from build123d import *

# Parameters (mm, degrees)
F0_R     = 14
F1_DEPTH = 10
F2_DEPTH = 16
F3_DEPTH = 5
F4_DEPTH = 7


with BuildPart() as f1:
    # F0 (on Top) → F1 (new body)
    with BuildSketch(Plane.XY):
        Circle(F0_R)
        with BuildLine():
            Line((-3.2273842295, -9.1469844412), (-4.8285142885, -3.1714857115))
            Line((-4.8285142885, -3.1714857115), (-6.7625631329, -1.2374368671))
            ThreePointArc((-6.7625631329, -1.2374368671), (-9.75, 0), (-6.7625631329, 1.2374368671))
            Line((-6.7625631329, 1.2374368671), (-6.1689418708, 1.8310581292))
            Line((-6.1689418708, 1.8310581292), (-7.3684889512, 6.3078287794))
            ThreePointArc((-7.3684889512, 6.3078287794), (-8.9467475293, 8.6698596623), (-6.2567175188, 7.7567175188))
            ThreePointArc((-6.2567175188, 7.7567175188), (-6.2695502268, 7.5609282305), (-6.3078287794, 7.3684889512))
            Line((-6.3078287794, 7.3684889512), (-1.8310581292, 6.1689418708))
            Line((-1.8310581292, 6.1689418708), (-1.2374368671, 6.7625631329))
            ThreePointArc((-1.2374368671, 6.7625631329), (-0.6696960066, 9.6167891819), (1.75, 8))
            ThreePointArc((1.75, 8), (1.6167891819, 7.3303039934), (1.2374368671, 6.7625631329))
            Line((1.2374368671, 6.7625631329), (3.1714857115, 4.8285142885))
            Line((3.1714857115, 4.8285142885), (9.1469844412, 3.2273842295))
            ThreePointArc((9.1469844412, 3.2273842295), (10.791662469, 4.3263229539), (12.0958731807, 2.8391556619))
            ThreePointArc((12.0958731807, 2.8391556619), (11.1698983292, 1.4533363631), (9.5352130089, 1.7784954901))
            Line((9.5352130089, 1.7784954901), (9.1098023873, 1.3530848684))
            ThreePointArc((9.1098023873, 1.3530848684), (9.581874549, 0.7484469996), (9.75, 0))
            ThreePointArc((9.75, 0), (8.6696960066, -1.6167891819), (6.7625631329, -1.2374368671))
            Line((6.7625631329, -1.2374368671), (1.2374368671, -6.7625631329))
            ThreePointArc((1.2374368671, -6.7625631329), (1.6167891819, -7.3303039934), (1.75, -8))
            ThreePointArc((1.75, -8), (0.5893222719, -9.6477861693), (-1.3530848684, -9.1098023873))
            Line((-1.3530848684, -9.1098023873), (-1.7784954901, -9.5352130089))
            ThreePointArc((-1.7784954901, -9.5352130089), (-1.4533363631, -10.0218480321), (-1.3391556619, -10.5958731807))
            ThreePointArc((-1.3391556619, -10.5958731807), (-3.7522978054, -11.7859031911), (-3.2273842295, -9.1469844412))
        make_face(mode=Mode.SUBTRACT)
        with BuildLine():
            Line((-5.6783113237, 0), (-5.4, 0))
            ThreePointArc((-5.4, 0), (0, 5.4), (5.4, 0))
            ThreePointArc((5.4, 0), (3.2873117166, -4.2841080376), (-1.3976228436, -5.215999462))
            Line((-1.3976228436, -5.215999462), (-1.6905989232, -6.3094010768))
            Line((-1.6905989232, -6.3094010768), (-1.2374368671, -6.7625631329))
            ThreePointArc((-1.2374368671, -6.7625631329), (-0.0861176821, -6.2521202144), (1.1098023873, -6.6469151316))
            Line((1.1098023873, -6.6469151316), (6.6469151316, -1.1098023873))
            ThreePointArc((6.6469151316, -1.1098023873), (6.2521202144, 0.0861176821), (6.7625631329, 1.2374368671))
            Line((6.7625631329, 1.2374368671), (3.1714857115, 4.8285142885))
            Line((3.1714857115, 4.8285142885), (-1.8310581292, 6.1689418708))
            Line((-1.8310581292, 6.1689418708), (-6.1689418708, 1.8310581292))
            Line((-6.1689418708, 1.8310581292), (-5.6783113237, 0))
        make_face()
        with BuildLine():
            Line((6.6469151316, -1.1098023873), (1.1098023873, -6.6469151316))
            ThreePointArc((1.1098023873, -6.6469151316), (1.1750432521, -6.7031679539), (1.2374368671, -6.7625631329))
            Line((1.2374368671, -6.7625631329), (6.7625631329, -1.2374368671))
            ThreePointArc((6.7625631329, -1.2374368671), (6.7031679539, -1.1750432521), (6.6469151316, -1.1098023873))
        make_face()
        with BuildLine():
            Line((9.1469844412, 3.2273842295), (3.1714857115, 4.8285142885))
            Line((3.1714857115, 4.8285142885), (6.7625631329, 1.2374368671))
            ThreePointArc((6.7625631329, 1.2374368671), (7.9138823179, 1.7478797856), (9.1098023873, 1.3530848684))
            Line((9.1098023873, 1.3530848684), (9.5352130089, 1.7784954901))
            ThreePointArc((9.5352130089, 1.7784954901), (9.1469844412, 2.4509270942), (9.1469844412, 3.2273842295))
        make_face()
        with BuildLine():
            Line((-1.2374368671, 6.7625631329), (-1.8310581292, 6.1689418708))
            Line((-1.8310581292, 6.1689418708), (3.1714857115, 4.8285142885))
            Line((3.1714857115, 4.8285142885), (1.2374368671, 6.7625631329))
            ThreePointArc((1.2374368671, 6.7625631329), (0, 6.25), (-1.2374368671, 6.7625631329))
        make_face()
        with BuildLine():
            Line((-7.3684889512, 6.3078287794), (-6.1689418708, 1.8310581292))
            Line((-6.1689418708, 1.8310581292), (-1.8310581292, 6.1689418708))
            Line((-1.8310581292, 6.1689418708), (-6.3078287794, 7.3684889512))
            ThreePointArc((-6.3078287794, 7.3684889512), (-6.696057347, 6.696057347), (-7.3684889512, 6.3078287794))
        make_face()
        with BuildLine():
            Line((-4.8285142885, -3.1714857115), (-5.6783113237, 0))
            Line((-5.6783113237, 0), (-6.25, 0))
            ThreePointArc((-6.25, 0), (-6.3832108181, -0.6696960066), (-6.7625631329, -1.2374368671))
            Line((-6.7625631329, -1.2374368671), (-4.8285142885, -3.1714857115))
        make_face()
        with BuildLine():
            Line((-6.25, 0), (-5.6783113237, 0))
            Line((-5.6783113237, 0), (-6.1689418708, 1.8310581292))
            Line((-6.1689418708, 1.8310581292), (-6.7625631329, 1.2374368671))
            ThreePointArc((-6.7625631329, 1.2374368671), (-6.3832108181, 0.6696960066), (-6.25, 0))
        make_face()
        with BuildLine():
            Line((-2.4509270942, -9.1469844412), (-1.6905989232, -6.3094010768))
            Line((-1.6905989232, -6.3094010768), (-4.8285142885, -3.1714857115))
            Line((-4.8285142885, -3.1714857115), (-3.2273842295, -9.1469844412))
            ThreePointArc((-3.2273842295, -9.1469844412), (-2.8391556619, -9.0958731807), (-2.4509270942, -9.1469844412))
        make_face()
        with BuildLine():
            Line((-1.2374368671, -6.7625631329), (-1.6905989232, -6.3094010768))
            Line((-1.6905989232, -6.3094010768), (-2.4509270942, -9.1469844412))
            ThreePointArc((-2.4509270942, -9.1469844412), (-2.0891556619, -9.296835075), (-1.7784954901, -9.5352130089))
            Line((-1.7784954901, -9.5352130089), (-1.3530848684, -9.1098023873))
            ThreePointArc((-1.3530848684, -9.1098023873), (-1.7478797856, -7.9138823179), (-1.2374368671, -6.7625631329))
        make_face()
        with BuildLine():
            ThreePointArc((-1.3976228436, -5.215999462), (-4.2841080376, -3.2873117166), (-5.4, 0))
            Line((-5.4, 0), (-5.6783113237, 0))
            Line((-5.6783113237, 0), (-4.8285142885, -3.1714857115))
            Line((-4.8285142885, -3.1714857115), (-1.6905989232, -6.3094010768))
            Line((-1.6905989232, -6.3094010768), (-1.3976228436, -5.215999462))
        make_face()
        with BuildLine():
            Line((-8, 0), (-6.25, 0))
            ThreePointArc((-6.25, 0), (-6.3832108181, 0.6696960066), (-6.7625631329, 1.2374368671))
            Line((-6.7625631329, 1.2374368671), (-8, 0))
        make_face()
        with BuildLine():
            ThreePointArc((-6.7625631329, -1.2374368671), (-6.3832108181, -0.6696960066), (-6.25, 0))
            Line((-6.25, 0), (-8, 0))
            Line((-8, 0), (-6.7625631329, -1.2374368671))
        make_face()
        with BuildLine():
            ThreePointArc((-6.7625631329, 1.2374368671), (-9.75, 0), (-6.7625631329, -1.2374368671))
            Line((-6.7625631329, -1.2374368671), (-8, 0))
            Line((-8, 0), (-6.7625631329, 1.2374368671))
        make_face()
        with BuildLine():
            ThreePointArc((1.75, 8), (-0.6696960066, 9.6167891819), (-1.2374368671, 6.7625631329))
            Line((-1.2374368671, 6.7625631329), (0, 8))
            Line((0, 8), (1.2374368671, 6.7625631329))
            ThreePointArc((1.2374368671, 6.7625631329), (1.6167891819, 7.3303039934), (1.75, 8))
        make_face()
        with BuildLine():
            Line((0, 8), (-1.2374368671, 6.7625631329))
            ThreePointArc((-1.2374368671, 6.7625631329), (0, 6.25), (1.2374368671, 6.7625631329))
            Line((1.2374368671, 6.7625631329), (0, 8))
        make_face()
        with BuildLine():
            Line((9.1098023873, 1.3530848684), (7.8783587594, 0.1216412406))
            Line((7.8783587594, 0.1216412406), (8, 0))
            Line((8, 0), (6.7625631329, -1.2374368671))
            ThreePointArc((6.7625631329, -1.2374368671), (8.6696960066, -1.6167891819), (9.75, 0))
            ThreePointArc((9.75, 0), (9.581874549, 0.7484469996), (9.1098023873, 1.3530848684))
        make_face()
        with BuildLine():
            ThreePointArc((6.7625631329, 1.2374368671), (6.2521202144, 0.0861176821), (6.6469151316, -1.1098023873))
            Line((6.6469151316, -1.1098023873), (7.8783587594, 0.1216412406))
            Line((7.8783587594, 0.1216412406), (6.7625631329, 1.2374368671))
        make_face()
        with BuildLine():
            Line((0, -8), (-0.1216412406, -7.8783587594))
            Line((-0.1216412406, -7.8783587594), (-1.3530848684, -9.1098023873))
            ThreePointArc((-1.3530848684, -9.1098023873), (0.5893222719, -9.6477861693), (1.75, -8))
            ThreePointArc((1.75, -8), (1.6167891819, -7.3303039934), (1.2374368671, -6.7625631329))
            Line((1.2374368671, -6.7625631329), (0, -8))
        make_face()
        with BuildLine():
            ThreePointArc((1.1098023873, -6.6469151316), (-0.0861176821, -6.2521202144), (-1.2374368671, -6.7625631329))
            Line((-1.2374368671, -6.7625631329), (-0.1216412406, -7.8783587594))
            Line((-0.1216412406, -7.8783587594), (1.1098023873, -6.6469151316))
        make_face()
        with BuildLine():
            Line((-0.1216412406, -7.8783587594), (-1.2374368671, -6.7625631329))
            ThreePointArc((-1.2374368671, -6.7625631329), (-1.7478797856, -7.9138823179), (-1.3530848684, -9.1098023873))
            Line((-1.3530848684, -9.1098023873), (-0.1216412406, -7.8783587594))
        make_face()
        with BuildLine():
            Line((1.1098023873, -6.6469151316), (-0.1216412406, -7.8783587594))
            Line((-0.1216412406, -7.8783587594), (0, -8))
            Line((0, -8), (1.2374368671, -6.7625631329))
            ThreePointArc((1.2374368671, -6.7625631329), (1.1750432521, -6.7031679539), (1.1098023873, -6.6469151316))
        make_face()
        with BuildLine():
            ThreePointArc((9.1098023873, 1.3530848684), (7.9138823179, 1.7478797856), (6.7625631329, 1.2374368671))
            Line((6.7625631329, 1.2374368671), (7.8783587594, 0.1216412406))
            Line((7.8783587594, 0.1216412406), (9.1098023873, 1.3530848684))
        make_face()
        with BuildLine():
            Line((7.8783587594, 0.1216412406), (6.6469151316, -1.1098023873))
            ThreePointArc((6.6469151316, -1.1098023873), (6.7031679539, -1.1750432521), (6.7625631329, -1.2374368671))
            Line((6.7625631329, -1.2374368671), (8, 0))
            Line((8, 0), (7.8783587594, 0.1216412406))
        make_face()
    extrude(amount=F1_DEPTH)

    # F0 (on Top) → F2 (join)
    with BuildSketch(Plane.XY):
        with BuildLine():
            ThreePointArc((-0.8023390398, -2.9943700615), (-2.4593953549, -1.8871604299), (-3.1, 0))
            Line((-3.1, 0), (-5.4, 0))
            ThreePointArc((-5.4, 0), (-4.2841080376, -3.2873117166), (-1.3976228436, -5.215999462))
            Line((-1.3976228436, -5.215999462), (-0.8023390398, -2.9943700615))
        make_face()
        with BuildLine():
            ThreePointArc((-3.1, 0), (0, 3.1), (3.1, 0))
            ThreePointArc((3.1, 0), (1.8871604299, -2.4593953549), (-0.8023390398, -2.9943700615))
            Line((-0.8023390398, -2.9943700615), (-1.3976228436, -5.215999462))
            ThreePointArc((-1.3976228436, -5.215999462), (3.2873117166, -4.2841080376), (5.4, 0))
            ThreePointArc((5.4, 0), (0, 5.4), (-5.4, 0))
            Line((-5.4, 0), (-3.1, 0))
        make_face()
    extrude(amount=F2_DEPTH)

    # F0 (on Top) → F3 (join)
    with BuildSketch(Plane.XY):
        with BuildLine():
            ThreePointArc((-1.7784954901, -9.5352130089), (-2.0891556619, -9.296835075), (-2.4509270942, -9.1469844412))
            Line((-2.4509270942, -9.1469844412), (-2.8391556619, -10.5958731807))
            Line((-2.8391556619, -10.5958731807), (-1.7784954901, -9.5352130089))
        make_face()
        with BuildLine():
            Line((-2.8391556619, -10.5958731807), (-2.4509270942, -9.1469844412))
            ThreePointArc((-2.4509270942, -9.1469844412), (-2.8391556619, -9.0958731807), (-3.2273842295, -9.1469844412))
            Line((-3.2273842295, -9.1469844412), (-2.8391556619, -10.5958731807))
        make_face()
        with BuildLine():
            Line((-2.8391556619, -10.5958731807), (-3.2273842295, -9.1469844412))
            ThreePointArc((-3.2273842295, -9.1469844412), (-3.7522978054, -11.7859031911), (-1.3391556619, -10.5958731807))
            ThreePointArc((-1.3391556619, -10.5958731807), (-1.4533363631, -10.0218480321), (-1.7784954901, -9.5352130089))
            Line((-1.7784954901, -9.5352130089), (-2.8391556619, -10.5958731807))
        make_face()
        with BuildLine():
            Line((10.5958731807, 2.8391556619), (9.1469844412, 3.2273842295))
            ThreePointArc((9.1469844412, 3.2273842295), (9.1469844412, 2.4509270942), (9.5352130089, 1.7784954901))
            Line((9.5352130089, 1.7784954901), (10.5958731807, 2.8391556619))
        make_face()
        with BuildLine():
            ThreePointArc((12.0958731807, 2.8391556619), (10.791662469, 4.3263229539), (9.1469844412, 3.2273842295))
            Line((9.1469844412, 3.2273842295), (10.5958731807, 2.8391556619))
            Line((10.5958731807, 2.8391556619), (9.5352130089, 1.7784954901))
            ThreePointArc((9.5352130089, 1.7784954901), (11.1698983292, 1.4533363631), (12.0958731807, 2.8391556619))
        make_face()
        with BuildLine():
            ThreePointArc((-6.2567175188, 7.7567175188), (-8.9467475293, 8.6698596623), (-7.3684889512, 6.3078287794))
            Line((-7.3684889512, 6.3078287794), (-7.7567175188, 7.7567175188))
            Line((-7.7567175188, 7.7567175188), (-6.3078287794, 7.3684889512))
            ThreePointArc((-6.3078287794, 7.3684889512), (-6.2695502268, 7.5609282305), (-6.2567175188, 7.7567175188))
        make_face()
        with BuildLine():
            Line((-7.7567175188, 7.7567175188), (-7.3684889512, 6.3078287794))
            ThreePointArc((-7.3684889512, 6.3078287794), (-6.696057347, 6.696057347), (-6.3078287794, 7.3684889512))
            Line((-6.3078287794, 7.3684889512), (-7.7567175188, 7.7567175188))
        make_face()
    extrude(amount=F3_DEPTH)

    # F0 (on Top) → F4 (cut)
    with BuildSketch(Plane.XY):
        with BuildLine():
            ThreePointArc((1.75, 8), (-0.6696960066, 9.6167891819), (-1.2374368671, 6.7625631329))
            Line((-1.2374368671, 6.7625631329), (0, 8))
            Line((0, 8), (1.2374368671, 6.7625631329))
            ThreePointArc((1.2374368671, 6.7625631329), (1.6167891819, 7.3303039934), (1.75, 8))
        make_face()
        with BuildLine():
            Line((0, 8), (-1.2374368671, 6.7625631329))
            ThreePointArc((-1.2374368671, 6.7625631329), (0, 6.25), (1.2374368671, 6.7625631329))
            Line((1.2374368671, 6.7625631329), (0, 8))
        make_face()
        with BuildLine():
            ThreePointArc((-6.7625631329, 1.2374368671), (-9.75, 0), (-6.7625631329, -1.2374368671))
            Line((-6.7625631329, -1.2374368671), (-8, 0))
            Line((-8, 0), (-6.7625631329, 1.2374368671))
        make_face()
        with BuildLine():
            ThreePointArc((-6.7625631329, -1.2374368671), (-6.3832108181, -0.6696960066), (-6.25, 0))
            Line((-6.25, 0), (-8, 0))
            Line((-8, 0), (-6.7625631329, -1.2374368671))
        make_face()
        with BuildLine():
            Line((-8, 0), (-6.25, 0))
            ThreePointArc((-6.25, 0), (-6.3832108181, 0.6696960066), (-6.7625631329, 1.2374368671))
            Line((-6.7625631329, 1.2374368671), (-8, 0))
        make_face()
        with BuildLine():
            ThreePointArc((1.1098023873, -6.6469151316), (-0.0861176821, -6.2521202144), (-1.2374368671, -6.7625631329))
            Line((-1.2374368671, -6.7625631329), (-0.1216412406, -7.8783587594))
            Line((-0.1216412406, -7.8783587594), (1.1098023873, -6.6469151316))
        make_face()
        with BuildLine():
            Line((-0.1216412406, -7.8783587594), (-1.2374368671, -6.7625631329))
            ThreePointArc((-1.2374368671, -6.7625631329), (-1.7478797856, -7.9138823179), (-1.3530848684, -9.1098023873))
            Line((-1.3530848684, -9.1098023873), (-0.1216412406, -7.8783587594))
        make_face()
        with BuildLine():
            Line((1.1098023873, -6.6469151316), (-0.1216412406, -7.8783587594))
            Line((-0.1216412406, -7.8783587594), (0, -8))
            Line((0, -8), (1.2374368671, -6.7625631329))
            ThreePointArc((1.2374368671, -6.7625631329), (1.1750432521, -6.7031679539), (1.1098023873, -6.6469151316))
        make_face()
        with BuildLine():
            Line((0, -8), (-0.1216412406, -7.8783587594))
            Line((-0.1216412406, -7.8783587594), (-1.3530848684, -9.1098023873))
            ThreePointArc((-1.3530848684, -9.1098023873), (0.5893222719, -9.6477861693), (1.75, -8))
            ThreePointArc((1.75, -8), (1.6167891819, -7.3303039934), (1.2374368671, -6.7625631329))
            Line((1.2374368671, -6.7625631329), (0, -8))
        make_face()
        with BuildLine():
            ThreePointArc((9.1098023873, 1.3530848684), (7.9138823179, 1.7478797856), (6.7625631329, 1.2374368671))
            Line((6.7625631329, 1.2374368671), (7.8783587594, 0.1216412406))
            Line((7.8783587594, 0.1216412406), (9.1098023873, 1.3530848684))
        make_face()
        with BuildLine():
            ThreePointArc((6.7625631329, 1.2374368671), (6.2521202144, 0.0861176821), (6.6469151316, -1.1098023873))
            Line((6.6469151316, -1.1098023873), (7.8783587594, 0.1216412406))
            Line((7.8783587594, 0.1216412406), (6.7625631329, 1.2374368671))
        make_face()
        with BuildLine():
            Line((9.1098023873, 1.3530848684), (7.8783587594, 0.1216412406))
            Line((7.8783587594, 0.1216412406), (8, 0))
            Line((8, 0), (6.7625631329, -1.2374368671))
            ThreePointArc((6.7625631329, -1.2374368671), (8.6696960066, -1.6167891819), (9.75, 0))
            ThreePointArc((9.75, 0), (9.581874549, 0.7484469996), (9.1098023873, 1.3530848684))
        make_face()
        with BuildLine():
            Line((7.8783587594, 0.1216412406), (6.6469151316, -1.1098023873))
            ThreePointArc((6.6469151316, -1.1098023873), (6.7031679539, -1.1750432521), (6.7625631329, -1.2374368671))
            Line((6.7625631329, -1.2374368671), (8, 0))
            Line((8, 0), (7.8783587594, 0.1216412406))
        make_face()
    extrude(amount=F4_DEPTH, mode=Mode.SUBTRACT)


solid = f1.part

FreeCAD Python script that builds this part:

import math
import FreeCAD as App
import Part
import Sketcher
from FreeCAD import Vector
Q = App.Units.Quantity

doc = App.newDocument("Part")
body = doc.addObject("PartDesign::Body", "Body")

sketch1 = body.newObject("Sketcher::SketchObject", "Sketch")
sketch1.AttachmentSupport = (doc.getObject("XY_Plane"), [""])
sketch1.MapMode = "FlatFace"
sketch1.addGeometry([
    Part.Circle(Vector(0, 0, 0), Vector(0, 0, 1), 14),
    Part.ArcOfCircle(Part.Circle(Vector(-2.84, -10.6, 0), Vector(0, 0, 1), 1.5), math.radians(75), math.radians(105)),
    Part.ArcOfCircle(Part.Circle(Vector(-2.84, -10.6, 0), Vector(0, 0, 1), 1.5), math.radians(45), math.radians(75)),
    Part.ArcOfCircle(Part.Circle(Vector(-2.84, -10.6, 0), Vector(0, 0, 1), 1.5), math.radians(0), math.radians(45)),
    Part.ArcOfCircle(Part.Circle(Vector(-2.84, -10.6, 0), Vector(0, 0, 1), 1.5), math.radians(105), math.radians(360)),
    Part.ArcOfCircle(Part.Circle(Vector(0, 0, 0), Vector(0, 0, 1), 5.4), math.radians(0), math.radians(180)),
    Part.ArcOfCircle(Part.Circle(Vector(0, 0, 0), Vector(0, 0, 1), 5.4), math.radians(-105), math.radians(0)),
    Part.ArcOfCircle(Part.Circle(Vector(0, 0, 0), Vector(0, 0, 1), 5.4), math.radians(180), math.radians(255)),
    Part.ArcOfCircle(Part.Circle(Vector(-7.76, 7.76, 0), Vector(0, 0, 1), 1.5), math.radians(-15), math.radians(0)),
    Part.ArcOfCircle(Part.Circle(Vector(-7.76, 7.76, 0), Vector(0, 0, 1), 1.5), math.radians(-75), math.radians(-15)),
    Part.ArcOfCircle(Part.Circle(Vector(-7.76, 7.76, 0), Vector(0, 0, 1), 1.5), math.radians(0), math.radians(285)),
    Part.ArcOfCircle(Part.Circle(Vector(10.6, 2.84, 0), Vector(0, 0, 1), 1.5), math.radians(-135), math.radians(0)),
    Part.ArcOfCircle(Part.Circle(Vector(10.6, 2.84, 0), Vector(0, 0, 1), 1.5), math.radians(165), math.radians(225)),
    Part.ArcOfCircle(Part.Circle(Vector(10.6, 2.84, 0), Vector(0, 0, 1), 1.5), math.radians(0), math.radians(165)),
], False)
sketch1.addConstraint([
    Sketcher.Constraint("Tangent", 1, 1, 2, 2),
    Sketcher.Constraint("Tangent", 2, 1, 3, 2),
    Sketcher.Constraint("Tangent", 3, 1, 4, 2),
    Sketcher.Constraint("Tangent", 4, 1, 1, 2),
    Sketcher.Constraint("Tangent", 5, 1, 6, 2),
    Sketcher.Constraint("Tangent", 6, 1, 7, 2),
    Sketcher.Constraint("Tangent", 7, 1, 5, 2),
    Sketcher.Constraint("Tangent", 8, 1, 9, 2),
    Sketcher.Constraint("Tangent", 9, 1, 10, 2),
    Sketcher.Constraint("Tangent", 10, 1, 8, 2),
    Sketcher.Constraint("Tangent", 11, 1, 12, 2),
    Sketcher.Constraint("Tangent", 12, 1, 13, 2),
    Sketcher.Constraint("Tangent", 13, 1, 11, 2),
    Sketcher.Constraint("Coincident", 0, 3, -1, 1),
    Sketcher.Constraint("Coincident", 5, 3, -1, 1),
    Sketcher.Constraint("Equal", 1, 2),
    Sketcher.Constraint("Equal", 4, 8),
    Sketcher.Constraint("Equal", 10, 11),
    Sketcher.Constraint("PointOnObject", 5, 1, -1),
    Sketcher.Constraint("PointOnObject", 7, 1, -1),
    Sketcher.Constraint("Horizontal", 4, 3, 3, 1),
    Sketcher.Constraint("Horizontal", 1, 1, 4, 1),
    Sketcher.Constraint("Horizontal", 9, 3, 10, 1),
    Sketcher.Constraint("Horizontal", 12, 3, 13, 1),
    Sketcher.Constraint("Diameter", 0, Q("28 mm")),
    Sketcher.Constraint("Radius", 1, Q("1.5 mm")),
    Sketcher.Constraint("Radius", 5, Q("5.4 mm")),
    Sketcher.Constraint("DistanceY", 6, 1, -1, 1, Q("5.215999 mm")),
    Sketcher.Constraint("DistanceX", 8, 1, -1, 1, Q("6.307829 mm")),
    Sketcher.Constraint("DistanceY", -1, 1, 8, 1, Q("7.368489 mm")),
    Sketcher.Constraint("DistanceX", 9, 1, -1, 1, Q("7.368489 mm")),
    Sketcher.Constraint("DistanceY", -1, 1, 9, 1, Q("6.307829 mm")),
    Sketcher.Constraint("DistanceX", 8, 3, 3, 3, Q("4.917562 mm")),
    Sketcher.Constraint("DistanceY", 3, 3, 8, 3, Q("18.352591 mm")),
    Sketcher.Constraint("DistanceX", 3, 3, 11, 3, Q("13.435029 mm")),
    Sketcher.Constraint("DistanceY", 3, 3, 11, 3, Q("13.435029 mm")),
    Sketcher.Constraint("DistanceX", 3, 3, 1, 1, Q("0.388229 mm")),
    Sketcher.Constraint("DistanceX", 1, 1, 2, 1, Q("0.672432 mm")),
    Sketcher.Constraint("DistanceX", 11, 1, 12, 3, Q("1.06066 mm")),
    Sketcher.Constraint("DistanceX", 12, 1, 12, 3, Q("1.448889 mm")),
])
pad1 = body.newObject("PartDesign::Pad", "Pad")
pad1.Profile = sketch1
pad1.Length = 10

sketch2 = body.newObject("Sketcher::SketchObject", "Sketch001")
sketch2.AttachmentSupport = (doc.getObject("XY_Plane"), [""])
sketch2.MapMode = "FlatFace"
sketch2.addGeometry([
    Part.ArcOfCircle(Part.Circle(Vector(0, 0, 0), Vector(0, 0, 1), 5.4), math.radians(180), math.radians(255)),
    Part.ArcOfCircle(Part.Circle(Vector(0, 0, 0), Vector(0, 0, 1), 5.4), math.radians(-105), math.radians(0)),
    Part.ArcOfCircle(Part.Circle(Vector(0, 0, 0), Vector(0, 0, 1), 5.4), math.radians(0), math.radians(180)),
    Part.ArcOfCircle(Part.Circle(Vector(0, 0, 0), Vector(0, 0, 1), 3.1), math.radians(180), math.radians(255)),
    Part.ArcOfCircle(Part.Circle(Vector(0, 0, 0), Vector(0, 0, 1), 3.1), math.radians(0), math.radians(180)),
    Part.ArcOfCircle(Part.Circle(Vector(0, 0, 0), Vector(0, 0, 1), 3.1), math.radians(-105), math.radians(0)),
], False)
sketch2.addConstraint([
    Sketcher.Constraint("Tangent", 0, 2, 1, 1),
    Sketcher.Constraint("Tangent", 1, 2, 2, 1),
    Sketcher.Constraint("Tangent", 2, 2, 0, 1),
    Sketcher.Constraint("Tangent", 3, 1, 4, 2),
    Sketcher.Constraint("Tangent", 4, 1, 5, 2),
    Sketcher.Constraint("Tangent", 5, 1, 3, 2),
    Sketcher.Constraint("Coincident", 0, 3, -1, 1),
    Sketcher.Constraint("Coincident", 3, 3, -1, 1),
    Sketcher.Constraint("PointOnObject", 1, 2, -1),
    Sketcher.Constraint("PointOnObject", 2, 2, -1),
    Sketcher.Constraint("PointOnObject", 3, 1, -1),
    Sketcher.Constraint("PointOnObject", 4, 1, -1),
    Sketcher.Constraint("Radius", 0, Q("5.4 mm")),
    Sketcher.Constraint("Radius", 3, Q("3.1 mm")),
    Sketcher.Constraint("DistanceY", 0, 2, -1, 1, Q("5.215999 mm")),
    Sketcher.Constraint("DistanceX", 5, 1, -1, 1, Q("0.802339 mm")),
])
pad2 = body.newObject("PartDesign::Pad", "Pad001")
pad2.Profile = sketch2
pad2.Length = 16

sketch3 = body.newObject("Sketcher::SketchObject", "Sketch002")
sketch3.AttachmentSupport = (doc.getObject("XY_Plane"), [""])
sketch3.MapMode = "FlatFace"
sketch3.addGeometry([
    Part.ArcOfCircle(Part.Circle(Vector(-2.84, -10.6, 0), Vector(0, 0, 1), 1.5), math.radians(45), math.radians(75)),
    Part.ArcOfCircle(Part.Circle(Vector(-2.84, -10.6, 0), Vector(0, 0, 1), 1.5), math.radians(75), math.radians(105)),
    Part.ArcOfCircle(Part.Circle(Vector(-2.84, -10.6, 0), Vector(0, 0, 1), 1.5), math.radians(105), math.radians(360)),
    Part.ArcOfCircle(Part.Circle(Vector(-2.84, -10.6, 0), Vector(0, 0, 1), 1.5), math.radians(0), math.radians(45)),
    Part.ArcOfCircle(Part.Circle(Vector(10.6, 2.84, 0), Vector(0, 0, 1), 1.5), math.radians(165), math.radians(225)),
    Part.ArcOfCircle(Part.Circle(Vector(10.6, 2.84, 0), Vector(0, 0, 1), 1.5), math.radians(-135), math.radians(0)),
    Part.ArcOfCircle(Part.Circle(Vector(10.6, 2.84, 0), Vector(0, 0, 1), 1.5), math.radians(0), math.radians(165)),
    Part.ArcOfCircle(Part.Circle(Vector(-7.76, 7.76, 0), Vector(0, 0, 1), 1.5), math.radians(0), math.radians(285)),
    Part.ArcOfCircle(Part.Circle(Vector(-7.76, 7.76, 0), Vector(0, 0, 1), 1.5), math.radians(-75), math.radians(-15)),
    Part.ArcOfCircle(Part.Circle(Vector(-7.76, 7.76, 0), Vector(0, 0, 1), 1.5), math.radians(-15), math.radians(0)),
], False)
sketch3.addConstraint([
    Sketcher.Constraint("Tangent", 0, 2, 1, 1),
    Sketcher.Constraint("Tangent", 1, 2, 2, 1),
    Sketcher.Constraint("Tangent", 2, 2, 3, 1),
    Sketcher.Constraint("Tangent", 3, 2, 0, 1),
    Sketcher.Constraint("Tangent", 4, 2, 5, 1),
    Sketcher.Constraint("Tangent", 5, 2, 6, 1),
    Sketcher.Constraint("Tangent", 6, 2, 4, 1),
    Sketcher.Constraint("Tangent", 7, 2, 8, 1),
    Sketcher.Constraint("Tangent", 8, 2, 9, 1),
    Sketcher.Constraint("Tangent", 9, 2, 7, 1),
    Sketcher.Constraint("Equal", 0, 1),
    Sketcher.Constraint("Equal", 3, 4),
    Sketcher.Constraint("Equal", 6, 7),
    Sketcher.Constraint("Horizontal", 0, 2, 1, 2),
    Sketcher.Constraint("Horizontal", 3, 3, 2, 2),
    Sketcher.Constraint("Horizontal", 6, 3, 5, 2),
    Sketcher.Constraint("Horizontal", 8, 3, 9, 2),
    Sketcher.Constraint("Radius", 0, Q("1.5 mm")),
    Sketcher.Constraint("DistanceY", 0, 2, 8, 3, Q("16.903702 mm")),
    Sketcher.Constraint("DistanceX", 7, 2, -1, 1, Q("7.368489 mm")),
    Sketcher.Constraint("DistanceY", -1, 1, 7, 2, Q("6.307829 mm")),
    Sketcher.Constraint("DistanceX", 8, 2, -1, 1, Q("6.307829 mm")),
    Sketcher.Constraint("DistanceY", -1, 1, 8, 2, Q("7.368489 mm")),
    Sketcher.Constraint("DistanceX", 3, 3, 4, 3, Q("13.435029 mm")),
    Sketcher.Constraint("DistanceY", 3, 3, 4, 3, Q("13.435029 mm")),
    Sketcher.Constraint("DistanceX", 7, 3, 4, 3, Q("18.352591 mm")),
    Sketcher.Constraint("DistanceY", 4, 3, 7, 3, Q("4.917562 mm")),
    Sketcher.Constraint("DistanceX", 0, 2, 3, 2, Q("0.672432 mm")),
    Sketcher.Constraint("DistanceX", 4, 2, 4, 3, Q("1.06066 mm")),
    Sketcher.Constraint("DistanceX", 6, 2, 4, 3, Q("1.448889 mm")),
])
pad3 = body.newObject("PartDesign::Pad", "Pad002")
pad3.Profile = sketch3
pad3.Length = 5

sketch4 = body.newObject("Sketcher::SketchObject", "Sketch003")
sketch4.AttachmentSupport = (doc.getObject("XY_Plane"), [""])
sketch4.MapMode = "FlatFace"
sketch4.addGeometry([
    Part.ArcOfCircle(Part.Circle(Vector(0, 8, 0), Vector(0, 0, 1), 1.75), math.radians(0), math.radians(225)),
    Part.ArcOfCircle(Part.Circle(Vector(0, 8, 0), Vector(0, 0, 1), 1.75), math.radians(-135), math.radians(-45)),
    Part.ArcOfCircle(Part.Circle(Vector(0, 8, 0), Vector(0, 0, 1), 1.75), math.radians(-45), math.radians(0)),
    Part.ArcOfCircle(Part.Circle(Vector(-8, 0, 0), Vector(0, 0, 1), 1.75), math.radians(45), math.radians(315)),
    Part.ArcOfCircle(Part.Circle(Vector(-8, 0, 0), Vector(0, 0, 1), 1.75), math.radians(-45), math.radians(0)),
    Part.ArcOfCircle(Part.Circle(Vector(-8, 0, 0), Vector(0, 0, 1), 1.75), math.radians(0), math.radians(45)),
    Part.ArcOfCircle(Part.Circle(Vector(0, -8, 0), Vector(0, 0, 1), 1.75), math.radians(51), math.radians(135)),
    Part.ArcOfCircle(Part.Circle(Vector(0, -8, 0), Vector(0, 0, 1), 1.75), math.radians(135), math.radians(219)),
    Part.ArcOfCircle(Part.Circle(Vector(0, -8, 0), Vector(0, 0, 1), 1.75), math.radians(-141), math.radians(0)),
    Part.ArcOfCircle(Part.Circle(Vector(0, -8, 0), Vector(0, 0, 1), 1.75), math.radians(0), math.radians(45)),
    Part.ArcOfCircle(Part.Circle(Vector(0, -8, 0), Vector(0, 0, 1), 1.75), math.radians(45), math.radians(50.64)),
    Part.ArcOfCircle(Part.Circle(Vector(8, 0, 0), Vector(0, 0, 1), 1.75), math.radians(-135), math.radians(0)),
    Part.ArcOfCircle(Part.Circle(Vector(8, 0, 0), Vector(0, 0, 1), 1.75), math.radians(0), math.radians(51)),
    Part.ArcOfCircle(Part.Circle(Vector(8, 0, 0), Vector(0, 0, 1), 1.75), math.radians(51), math.radians(135)),
    Part.ArcOfCircle(Part.Circle(Vector(8, 0, 0), Vector(0, 0, 1), 1.75), math.radians(135), math.radians(219)),
    Part.ArcOfCircle(Part.Circle(Vector(8, 0, 0), Vector(0, 0, 1), 1.75), math.radians(-140.64), math.radians(-135)),
], False)
sketch4.addConstraint([
    Sketcher.Constraint("Tangent", 0, 2, 1, 1),
    Sketcher.Constraint("Tangent", 1, 2, 2, 1),
    Sketcher.Constraint("Tangent", 2, 2, 0, 1),
    Sketcher.Constraint("Tangent", 3, 2, 4, 1),
    Sketcher.Constraint("Tangent", 4, 2, 5, 1),
    Sketcher.Constraint("Tangent", 5, 2, 3, 1),
    Sketcher.Constraint("Tangent", 6, 2, 7, 1),
    Sketcher.Constraint("Tangent", 7, 2, 8, 1),
    Sketcher.Constraint("Tangent", 8, 2, 9, 1),
    Sketcher.Constraint("Tangent", 9, 2, 10, 1),
    Sketcher.Constraint("Tangent", 10, 2, 6, 1),
    Sketcher.Constraint("Tangent", 11, 2, 12, 1),
    Sketcher.Constraint("Tangent", 12, 2, 13, 1),
    Sketcher.Constraint("Tangent", 13, 2, 14, 1),
    Sketcher.Constraint("Tangent", 14, 2, 15, 1),
    Sketcher.Constraint("Tangent", 15, 2, 11, 1),
    Sketcher.Constraint("Coincident", 8, 3, 6, 3),
    Sketcher.Constraint("Coincident", 13, 3, 11, 3),
    Sketcher.Constraint("Equal", 2, 3),
    Sketcher.Constraint("Equal", 5, 6),
    Sketcher.Constraint("Equal", 10, 11),
    Sketcher.Constraint("Symmetric", 0, 3, 6, 3, -1, 1),
    Sketcher.Constraint("Symmetric", 3, 3, 11, 3, -1, 1),
    Sketcher.Constraint("Symmetric", 0, 2, 1, 2, -2),
    Sketcher.Constraint("Symmetric", 5, 2, 13, 2, -2),
    Sketcher.Constraint("PointOnObject", 4, 2, -1),
    Sketcher.Constraint("PointOnObject", 11, 2, -1),
    Sketcher.Constraint("Horizontal", 1, 3, 2, 2),
    Sketcher.Constraint("Horizontal", 10, 3, 8, 2),
    Sketcher.Constraint("Horizontal", 6, 2, 9, 2),
    Sketcher.Constraint("Horizontal", 3, 2, 15, 2),
    Sketcher.Constraint("Vertical", 3, 2, 5, 2),
    Sketcher.Constraint("Vertical", 0, 2, 6, 2),
    Sketcher.Constraint("Radius", 0, Q("1.75 mm")),
    Sketcher.Constraint("DistanceY", -1, 1, 0, 3, Q("8 mm")),
    Sketcher.Constraint("DistanceX", 3, 3, -1, 1, Q("8 mm")),
    Sketcher.Constraint("DistanceY", 9, 2, 10, 2, Q("0.115648 mm")),
    Sketcher.Constraint("DistanceX", 14, 2, 15, 2, Q("0.115648 mm")),
    Sketcher.Constraint("DistanceX", 0, 2, -1, 1, Q("1.237437 mm")),
    Sketcher.Constraint("DistanceX", 3, 2, -1, 1, Q("6.762563 mm")),
    Sketcher.Constraint("DistanceX", 7, 2, -1, 1, Q("1.353085 mm")),
    Sketcher.Constraint("DistanceX", -1, 1, 12, 2, Q("9.109802 mm")),
])
pocket1 = body.newObject("PartDesign::Pocket", "Pocket")
pocket1.Profile = sketch4
pocket1.Length = 7
pocket1.Reversed = True

doc.recompute()
